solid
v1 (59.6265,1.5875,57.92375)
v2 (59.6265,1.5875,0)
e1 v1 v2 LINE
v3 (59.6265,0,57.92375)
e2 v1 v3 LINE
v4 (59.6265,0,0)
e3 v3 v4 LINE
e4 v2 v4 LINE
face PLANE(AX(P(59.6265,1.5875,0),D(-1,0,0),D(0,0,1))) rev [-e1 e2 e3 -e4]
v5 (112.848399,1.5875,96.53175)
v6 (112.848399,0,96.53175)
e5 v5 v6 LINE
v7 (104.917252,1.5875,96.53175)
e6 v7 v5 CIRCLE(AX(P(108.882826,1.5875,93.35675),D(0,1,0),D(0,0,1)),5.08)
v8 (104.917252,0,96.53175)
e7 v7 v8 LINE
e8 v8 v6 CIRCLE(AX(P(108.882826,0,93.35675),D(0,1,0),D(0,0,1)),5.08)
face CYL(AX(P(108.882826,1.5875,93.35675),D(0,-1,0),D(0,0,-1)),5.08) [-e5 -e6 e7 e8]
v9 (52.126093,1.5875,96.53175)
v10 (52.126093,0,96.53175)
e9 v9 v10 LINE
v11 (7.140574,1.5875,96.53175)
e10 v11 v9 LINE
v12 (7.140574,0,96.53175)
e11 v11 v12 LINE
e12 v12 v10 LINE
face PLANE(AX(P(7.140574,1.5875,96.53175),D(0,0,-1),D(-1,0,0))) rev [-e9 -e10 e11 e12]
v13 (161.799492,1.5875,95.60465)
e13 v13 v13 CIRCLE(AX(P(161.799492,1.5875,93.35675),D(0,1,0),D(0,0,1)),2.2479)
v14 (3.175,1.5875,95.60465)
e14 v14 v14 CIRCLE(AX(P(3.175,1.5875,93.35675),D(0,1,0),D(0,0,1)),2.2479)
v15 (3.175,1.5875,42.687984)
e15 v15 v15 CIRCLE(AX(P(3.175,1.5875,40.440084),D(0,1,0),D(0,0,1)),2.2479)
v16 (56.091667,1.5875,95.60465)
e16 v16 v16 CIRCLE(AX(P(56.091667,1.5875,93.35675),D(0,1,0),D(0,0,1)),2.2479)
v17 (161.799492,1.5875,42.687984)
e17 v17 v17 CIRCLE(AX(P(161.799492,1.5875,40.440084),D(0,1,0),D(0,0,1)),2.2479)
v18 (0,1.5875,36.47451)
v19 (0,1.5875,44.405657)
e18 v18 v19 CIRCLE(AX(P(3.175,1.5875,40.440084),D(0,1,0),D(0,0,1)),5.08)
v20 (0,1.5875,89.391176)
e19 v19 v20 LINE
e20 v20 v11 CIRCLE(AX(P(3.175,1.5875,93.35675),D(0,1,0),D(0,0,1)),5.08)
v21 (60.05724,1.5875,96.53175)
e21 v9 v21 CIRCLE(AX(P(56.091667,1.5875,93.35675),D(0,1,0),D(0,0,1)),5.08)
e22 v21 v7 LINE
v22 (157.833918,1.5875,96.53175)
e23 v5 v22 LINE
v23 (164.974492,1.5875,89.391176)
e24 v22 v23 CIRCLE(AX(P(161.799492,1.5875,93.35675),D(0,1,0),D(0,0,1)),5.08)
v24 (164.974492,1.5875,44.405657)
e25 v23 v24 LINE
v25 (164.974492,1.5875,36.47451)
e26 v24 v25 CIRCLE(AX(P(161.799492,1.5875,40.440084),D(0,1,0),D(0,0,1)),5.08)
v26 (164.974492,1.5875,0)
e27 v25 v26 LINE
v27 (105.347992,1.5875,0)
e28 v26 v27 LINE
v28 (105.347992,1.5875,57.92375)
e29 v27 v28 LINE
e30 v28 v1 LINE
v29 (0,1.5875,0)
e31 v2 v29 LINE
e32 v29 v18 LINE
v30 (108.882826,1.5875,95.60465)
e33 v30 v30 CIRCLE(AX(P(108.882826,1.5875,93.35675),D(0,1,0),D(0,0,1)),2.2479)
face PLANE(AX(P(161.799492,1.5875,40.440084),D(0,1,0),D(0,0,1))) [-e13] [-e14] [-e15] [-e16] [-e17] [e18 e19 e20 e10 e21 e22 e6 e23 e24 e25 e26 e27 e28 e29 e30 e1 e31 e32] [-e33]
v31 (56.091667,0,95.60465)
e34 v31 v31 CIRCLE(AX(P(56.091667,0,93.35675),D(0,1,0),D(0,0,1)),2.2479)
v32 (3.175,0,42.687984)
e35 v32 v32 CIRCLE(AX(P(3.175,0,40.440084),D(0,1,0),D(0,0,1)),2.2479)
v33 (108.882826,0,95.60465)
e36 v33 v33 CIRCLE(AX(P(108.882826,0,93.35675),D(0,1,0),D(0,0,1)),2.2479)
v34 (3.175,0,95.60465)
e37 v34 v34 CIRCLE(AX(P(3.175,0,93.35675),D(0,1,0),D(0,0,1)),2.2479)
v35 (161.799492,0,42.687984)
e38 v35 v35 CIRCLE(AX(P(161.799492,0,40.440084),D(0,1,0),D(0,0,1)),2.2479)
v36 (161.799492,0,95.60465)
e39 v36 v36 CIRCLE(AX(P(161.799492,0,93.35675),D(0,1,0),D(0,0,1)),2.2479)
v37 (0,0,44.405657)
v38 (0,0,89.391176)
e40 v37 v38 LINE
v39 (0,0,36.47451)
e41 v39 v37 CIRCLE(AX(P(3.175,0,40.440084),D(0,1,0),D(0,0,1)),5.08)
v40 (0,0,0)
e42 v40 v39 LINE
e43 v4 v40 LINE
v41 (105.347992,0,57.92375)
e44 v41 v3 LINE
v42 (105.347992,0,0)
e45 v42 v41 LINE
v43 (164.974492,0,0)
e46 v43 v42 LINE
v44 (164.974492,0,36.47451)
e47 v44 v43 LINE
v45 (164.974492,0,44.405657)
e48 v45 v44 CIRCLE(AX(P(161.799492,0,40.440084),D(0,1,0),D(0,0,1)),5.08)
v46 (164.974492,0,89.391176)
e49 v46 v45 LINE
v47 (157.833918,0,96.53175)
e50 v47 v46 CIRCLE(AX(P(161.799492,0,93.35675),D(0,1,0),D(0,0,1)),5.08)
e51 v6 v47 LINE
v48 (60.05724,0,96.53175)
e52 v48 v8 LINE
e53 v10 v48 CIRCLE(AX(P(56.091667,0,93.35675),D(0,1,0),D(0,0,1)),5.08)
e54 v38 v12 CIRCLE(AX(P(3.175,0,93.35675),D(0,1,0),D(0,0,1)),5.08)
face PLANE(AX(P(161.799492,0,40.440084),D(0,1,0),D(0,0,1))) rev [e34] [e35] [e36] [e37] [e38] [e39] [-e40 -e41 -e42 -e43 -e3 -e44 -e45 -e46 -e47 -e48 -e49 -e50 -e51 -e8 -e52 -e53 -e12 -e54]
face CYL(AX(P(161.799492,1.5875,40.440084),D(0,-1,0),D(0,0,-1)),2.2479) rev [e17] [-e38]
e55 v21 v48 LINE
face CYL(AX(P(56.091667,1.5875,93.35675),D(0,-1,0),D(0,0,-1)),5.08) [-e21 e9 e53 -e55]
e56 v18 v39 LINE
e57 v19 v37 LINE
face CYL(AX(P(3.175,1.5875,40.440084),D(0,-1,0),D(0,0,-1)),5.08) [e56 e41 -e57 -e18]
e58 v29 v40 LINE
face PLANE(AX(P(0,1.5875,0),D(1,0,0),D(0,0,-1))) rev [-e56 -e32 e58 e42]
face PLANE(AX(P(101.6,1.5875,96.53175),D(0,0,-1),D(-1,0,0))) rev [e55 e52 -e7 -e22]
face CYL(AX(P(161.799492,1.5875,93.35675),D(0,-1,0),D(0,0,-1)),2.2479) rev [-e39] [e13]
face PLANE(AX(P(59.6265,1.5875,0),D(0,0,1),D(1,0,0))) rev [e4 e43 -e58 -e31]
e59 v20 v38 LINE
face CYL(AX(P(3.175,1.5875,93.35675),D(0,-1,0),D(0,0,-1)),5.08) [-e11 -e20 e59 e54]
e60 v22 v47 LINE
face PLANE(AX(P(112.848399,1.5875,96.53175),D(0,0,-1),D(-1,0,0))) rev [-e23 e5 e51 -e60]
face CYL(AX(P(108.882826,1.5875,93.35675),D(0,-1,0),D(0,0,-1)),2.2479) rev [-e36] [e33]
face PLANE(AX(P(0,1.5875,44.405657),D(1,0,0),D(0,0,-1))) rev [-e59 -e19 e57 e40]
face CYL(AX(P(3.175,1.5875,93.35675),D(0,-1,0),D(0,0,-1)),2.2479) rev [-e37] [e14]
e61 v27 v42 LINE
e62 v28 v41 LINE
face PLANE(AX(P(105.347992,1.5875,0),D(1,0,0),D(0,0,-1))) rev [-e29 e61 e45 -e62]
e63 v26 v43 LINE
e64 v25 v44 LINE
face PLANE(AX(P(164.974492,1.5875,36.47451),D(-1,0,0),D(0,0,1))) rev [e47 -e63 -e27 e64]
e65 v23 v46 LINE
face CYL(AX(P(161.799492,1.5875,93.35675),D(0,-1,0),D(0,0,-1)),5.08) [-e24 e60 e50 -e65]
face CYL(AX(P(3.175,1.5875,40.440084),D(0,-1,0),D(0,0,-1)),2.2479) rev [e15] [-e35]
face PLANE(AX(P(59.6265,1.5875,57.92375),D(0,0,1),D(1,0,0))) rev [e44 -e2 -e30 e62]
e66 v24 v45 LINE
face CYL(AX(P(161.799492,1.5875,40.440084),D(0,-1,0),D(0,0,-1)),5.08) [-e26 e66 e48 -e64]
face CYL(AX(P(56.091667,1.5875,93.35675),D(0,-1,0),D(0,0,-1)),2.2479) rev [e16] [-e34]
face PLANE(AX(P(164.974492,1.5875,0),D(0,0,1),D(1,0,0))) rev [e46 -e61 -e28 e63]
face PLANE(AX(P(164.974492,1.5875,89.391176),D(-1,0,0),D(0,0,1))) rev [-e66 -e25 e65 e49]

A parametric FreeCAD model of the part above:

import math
import FreeCAD as App
import Part
import Sketcher
Q = App.Units.Quantity

doc = App.newDocument("Part")
body = doc.addObject("PartDesign::Body", "Body")

# Sketch on XZ plane
sketch1 = body.newObject("Sketcher::SketchObject", "Sketch")
sketch1.AttachmentSupport = (doc.getObject("XZ_Plane"), [""])
sketch1.MapMode = "FlatFace"
sketch1.addGeometry(Part.LineSegment(App.Vector(59.6265, 0, 0), App.Vector(0, 0, 0)), False)
sketch1.addGeometry(Part.LineSegment(App.Vector(0, 0, 0), App.Vector(0, 36.47451, 0)), False)
sketch1.addGeometry(Part.ArcOfCircle(Part.Circle(App.Vector(3.175, 40.440084, 0), App.Vector(0, 0, 1), 5.08), math.radians(128.682187), math.radians(231.317813)), False)
sketch1.addGeometry(Part.LineSegment(App.Vector(0, 44.405657, 0), App.Vector(0, 89.391176, 0)), False)
sketch1.addGeometry(Part.ArcOfCircle(Part.Circle(App.Vector(3.175, 93.35675, 0), App.Vector(0, 0, 1), 5.08), math.radians(38.682187), math.radians(231.317813)), False)
sketch1.addGeometry(Part.LineSegment(App.Vector(7.140574, 96.53175, 0), App.Vector(52.126093, 96.53175, 0)), False)
sketch1.addGeometry(Part.ArcOfCircle(Part.Circle(App.Vector(56.091667, 93.35675, 0), App.Vector(0, 0, 1), 5.08), math.radians(38.682187), math.radians(141.317813)), False)
sketch1.addGeometry(Part.LineSegment(App.Vector(60.05724, 96.53175, 0), App.Vector(104.917252, 96.53175, 0)), False)
sketch1.addGeometry(Part.ArcOfCircle(Part.Circle(App.Vector(108.882826, 93.35675, 0), App.Vector(0, 0, 1), 5.08), math.radians(38.682187), math.radians(141.317813)), False)
sketch1.addGeometry(Part.LineSegment(App.Vector(112.848399, 96.53175, 0), App.Vector(157.833918, 96.53175, 0)), False)
sketch1.addGeometry(Part.ArcOfCircle(Part.Circle(App.Vector(161.799492, 93.35675, 0), App.Vector(0, 0, 1), 5.08), math.radians(-51.317813), math.radians(141.317813)), False)
sketch1.addGeometry(Part.LineSegment(App.Vector(164.974492, 89.391176, 0), App.Vector(164.974492, 44.405657, 0)), False)
sketch1.addGeometry(Part.ArcOfCircle(Part.Circle(App.Vector(161.799492, 40.440084, 0), App.Vector(0, 0, 1), 5.08), math.radians(-51.317813), math.radians(51.317813)), False)
sketch1.addGeometry(Part.LineSegment(App.Vector(164.974492, 36.47451, 0), App.Vector(164.974492, 0, 0)), False)
sketch1.addGeometry(Part.LineSegment(App.Vector(164.974492, 0, 0), App.Vector(105.347992, 0, 0)), False)
sketch1.addGeometry(Part.LineSegment(App.Vector(105.347992, 0, 0), App.Vector(105.347992, 57.92375, 0)), False)
sketch1.addGeometry(Part.LineSegment(App.Vector(105.347992, 57.92375, 0), App.Vector(59.6265, 57.92375, 0)), False)
sketch1.addGeometry(Part.LineSegment(App.Vector(59.6265, 57.92375, 0), App.Vector(59.6265, 0, 0)), False)
sketch1.addGeometry(Part.Circle(App.Vector(3.175, 93.35675, 0), App.Vector(0, 0, 1), 2.2479), False)
sketch1.addGeometry(Part.Circle(App.Vector(56.091667, 93.35675, 0), App.Vector(0, 0, 1), 2.2479), False)
sketch1.addGeometry(Part.Circle(App.Vector(108.882826, 93.35675, 0), App.Vector(0, 0, 1), 2.2479), False)
sketch1.addGeometry(Part.Circle(App.Vector(161.799492, 93.35675, 0), App.Vector(0, 0, 1), 2.2479), False)
sketch1.addGeometry(Part.Circle(App.Vector(3.175, 40.440084, 0), App.Vector(0, 0, 1), 2.2479), False)
sketch1.addGeometry(Part.Circle(App.Vector(161.799492, 40.440084, 0), App.Vector(0, 0, 1), 2.2479), False)
sketch1.addConstraint(Sketcher.Constraint("Coincident", 0, 2, 1, 1))
sketch1.addConstraint(Sketcher.Constraint("Coincident", 1, 2, 2, 2))
sketch1.addConstraint(Sketcher.Constraint("Coincident", 2, 1, 3, 1))
sketch1.addConstraint(Sketcher.Constraint("Coincident", 3, 2, 4, 2))
sketch1.addConstraint(Sketcher.Constraint("Coincident", 4, 1, 5, 1))
sketch1.addConstraint(Sketcher.Constraint("Coincident", 5, 2, 6, 2))
sketch1.addConstraint(Sketcher.Constraint("Coincident", 6, 1, 7, 1))
sketch1.addConstraint(Sketcher.Constraint("Coincident", 7, 2, 8, 2))
sketch1.addConstraint(Sketcher.Constraint("Coincident", 8, 1, 9, 1))
sketch1.addConstraint(Sketcher.Constraint("Coincident", 9, 2, 10, 2))
sketch1.addConstraint(Sketcher.Constraint("Coincident", 10, 1, 11, 1))
sketch1.addConstraint(Sketcher.Constraint("Coincident", 11, 2, 12, 2))
sketch1.addConstraint(Sketcher.Constraint("Coincident", 12, 1, 13, 1))
sketch1.addConstraint(Sketcher.Constraint("Coincident", 13, 2, 14, 1))
sketch1.addConstraint(Sketcher.Constraint("Coincident", 14, 2, 15, 1))
sketch1.addConstraint(Sketcher.Constraint("Coincident", 15, 2, 16, 1))
sketch1.addConstraint(Sketcher.Constraint("Coincident", 16, 2, 17, 1))
sketch1.addConstraint(Sketcher.Constraint("Coincident", 17, 2, 0, 1))
sketch1.addConstraint(Sketcher.Constraint("Horizontal", 0))
sketch1.addConstraint(Sketcher.Constraint("Vertical", 1))
sketch1.addConstraint(Sketcher.Constraint("Vertical", 3))
sketch1.addConstraint(Sketcher.Constraint("Horizontal", 5))
sketch1.addConstraint(Sketcher.Constraint("Horizontal", 7))
sketch1.addConstraint(Sketcher.Constraint("Horizontal", 9))
sketch1.addConstraint(Sketcher.Constraint("Vertical", 11))
sketch1.addConstraint(Sketcher.Constraint("Vertical", 13))
sketch1.addConstraint(Sketcher.Constraint("Horizontal", 14))
sketch1.addConstraint(Sketcher.Constraint("Vertical", 15))
sketch1.addConstraint(Sketcher.Constraint("Horizontal", 16))
sketch1.addConstraint(Sketcher.Constraint("Vertical", 17))
sketch1.addConstraint(Sketcher.Constraint("Coincident", 0, 2, -1, 1))
sketch1.addConstraint(Sketcher.Constraint("Coincident", 18, 3, 4, 3))
sketch1.addConstraint(Sketcher.Constraint("Coincident", 19, 3, 6, 3))
sketch1.addConstraint(Sketcher.Constraint("Coincident", 20, 3, 8, 3))
sketch1.addConstraint(Sketcher.Constraint("Coincident", 21, 3, 10, 3))
sketch1.addConstraint(Sketcher.Constraint("Coincident", 22, 3, 2, 3))
sketch1.addConstraint(Sketcher.Constraint("Coincident", 23, 3, 12, 3))
sketch1.addConstraint(Sketcher.Constraint("Equal", 2, 4))
sketch1.addConstraint(Sketcher.Constraint("Equal", 4, 6))
sketch1.addConstraint(Sketcher.Constraint("Equal", 6, 8))
sketch1.addConstraint(Sketcher.Constraint("Equal", 8, 10))
sketch1.addConstraint(Sketcher.Constraint("Equal", 10, 12))
sketch1.addConstraint(Sketcher.Constraint("Equal", 18, 19))
sketch1.addConstraint(Sketcher.Constraint("Equal", 19, 20))
sketch1.addConstraint(Sketcher.Constraint("Equal", 20, 21))
sketch1.addConstraint(Sketcher.Constraint("Equal", 21, 22))
sketch1.addConstraint(Sketcher.Constraint("Equal", 22, 23))
sketch1.addConstraint(Sketcher.Constraint("PointOnObject", 2, 1, -2))
sketch1.addConstraint(Sketcher.Constraint("PointOnObject", 13, 2, -1))
sketch1.addConstraint(Sketcher.Constraint("Horizontal", 4, 3, 6, 3))
sketch1.addConstraint(Sketcher.Constraint("Horizontal", 6, 3, 8, 3))
sketch1.addConstraint(Sketcher.Constraint("Horizontal", 8, 3, 10, 3))
sketch1.addConstraint(Sketcher.Constraint("Horizontal", 2, 3, 12, 3))
sketch1.addConstraint(Sketcher.Constraint("Horizontal", 5, 2, 6, 1))
sketch1.addConstraint(Sketcher.Constraint("Horizontal", 7, 2, 8, 1))
sketch1.addConstraint(Sketcher.Constraint("Horizontal", 3, 2, 10, 1))
sketch1.addConstraint(Sketcher.Constraint("Horizontal", 2, 1, 11, 2))
sketch1.addConstraint(Sketcher.Constraint("Horizontal", 1, 2, 12, 1))
sketch1.addConstraint(Sketcher.Constraint("Vertical", 2, 3, 4, 3))
sketch1.addConstraint(Sketcher.Constraint("Equal", 5, 9))
sketch1.addConstraint(Sketcher.Constraint("Equal", 0, 14))
sketch1.addConstraint(Sketcher.Constraint("Equal", 9, 3))
sketch1.addConstraint(Sketcher.Constraint("Radius", 2, Q("0.2 in")))
sketch1.addConstraint(Sketcher.Constraint("Diameter", 18, Q("0.177 in")))
sketch1.addConstraint(Sketcher.Constraint("DistanceY", 15, 2, 7, 2, Q("1.52 in")))
sketch1.addConstraint(Sketcher.Constraint("DistanceX", 0, 2, 0, 1, Q("2.3475 in")))
sketch1.addConstraint(Sketcher.Constraint("DistanceX", -1, 1, 2, 3, Q("0.125 in")))
sketch1.addConstraint(Sketcher.Constraint("DistanceY", 4, 3, 4, 1, Q("0.125 in")))
sketch1.addConstraint(Sketcher.Constraint("DistanceX", 5, 1, 5, 2, 44.985519))
sketch1.addConstraint(Sketcher.Constraint("DistanceX", 7, 1, 7, 2, 44.860011))
sketch1.addConstraint(Sketcher.Constraint("DistanceY", 1, 1, 1, 2, 36.47451))
pad1 = body.newObject("PartDesign::Pad", "Pad")
pad1.Profile = sketch1
pad1.Length = Q("0.0625 in")
pad1.Reversed = True

doc.recompute()
